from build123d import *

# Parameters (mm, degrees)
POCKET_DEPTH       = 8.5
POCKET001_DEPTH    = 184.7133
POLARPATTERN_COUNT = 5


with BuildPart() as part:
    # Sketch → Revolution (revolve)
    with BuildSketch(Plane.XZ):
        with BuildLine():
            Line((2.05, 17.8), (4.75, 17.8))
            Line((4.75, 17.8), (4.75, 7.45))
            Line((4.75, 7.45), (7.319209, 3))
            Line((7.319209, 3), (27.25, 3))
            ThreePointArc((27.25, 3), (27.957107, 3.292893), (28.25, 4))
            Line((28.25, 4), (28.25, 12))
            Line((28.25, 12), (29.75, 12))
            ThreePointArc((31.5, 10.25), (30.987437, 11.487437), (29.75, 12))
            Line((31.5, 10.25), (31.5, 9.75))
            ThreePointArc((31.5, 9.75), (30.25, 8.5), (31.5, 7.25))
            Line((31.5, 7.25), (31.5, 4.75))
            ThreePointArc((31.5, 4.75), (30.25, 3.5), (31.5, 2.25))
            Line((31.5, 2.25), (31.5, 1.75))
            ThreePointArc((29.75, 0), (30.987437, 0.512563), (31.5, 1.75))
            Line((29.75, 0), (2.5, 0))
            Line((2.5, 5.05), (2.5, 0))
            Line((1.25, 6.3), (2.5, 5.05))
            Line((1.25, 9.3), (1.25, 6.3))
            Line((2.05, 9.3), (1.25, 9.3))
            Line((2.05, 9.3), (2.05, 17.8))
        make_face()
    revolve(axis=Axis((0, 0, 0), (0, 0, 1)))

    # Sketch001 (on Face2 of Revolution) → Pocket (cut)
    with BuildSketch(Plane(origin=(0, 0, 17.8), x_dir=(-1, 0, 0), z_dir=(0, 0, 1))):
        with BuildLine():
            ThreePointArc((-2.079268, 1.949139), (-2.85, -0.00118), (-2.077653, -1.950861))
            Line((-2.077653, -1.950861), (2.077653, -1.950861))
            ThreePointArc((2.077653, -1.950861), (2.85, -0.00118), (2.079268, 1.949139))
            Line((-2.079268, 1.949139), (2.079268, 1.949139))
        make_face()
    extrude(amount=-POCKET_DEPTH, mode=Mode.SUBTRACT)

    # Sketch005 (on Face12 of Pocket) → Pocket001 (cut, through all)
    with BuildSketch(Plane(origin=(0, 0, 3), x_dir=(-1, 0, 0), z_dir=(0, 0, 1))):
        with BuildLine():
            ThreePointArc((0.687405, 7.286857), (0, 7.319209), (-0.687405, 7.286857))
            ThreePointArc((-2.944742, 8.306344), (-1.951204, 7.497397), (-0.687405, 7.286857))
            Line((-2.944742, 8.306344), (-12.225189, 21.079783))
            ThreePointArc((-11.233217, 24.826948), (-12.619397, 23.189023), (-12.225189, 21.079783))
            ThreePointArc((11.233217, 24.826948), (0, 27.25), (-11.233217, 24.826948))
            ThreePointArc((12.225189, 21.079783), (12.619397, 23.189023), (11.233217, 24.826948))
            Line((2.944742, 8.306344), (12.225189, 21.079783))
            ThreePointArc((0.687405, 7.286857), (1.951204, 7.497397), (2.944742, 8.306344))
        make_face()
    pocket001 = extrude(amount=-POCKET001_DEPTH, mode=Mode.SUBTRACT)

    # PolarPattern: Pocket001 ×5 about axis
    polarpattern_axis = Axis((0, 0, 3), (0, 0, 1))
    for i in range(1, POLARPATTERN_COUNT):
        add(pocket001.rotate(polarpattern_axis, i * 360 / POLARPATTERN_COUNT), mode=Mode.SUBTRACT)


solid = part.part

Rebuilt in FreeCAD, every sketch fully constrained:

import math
import FreeCAD as App
import Part
import Sketcher
Q = App.Units.Quantity

doc = App.newDocument("Part")
body = doc.addObject("PartDesign::Body", "Body")

# Sketch on XZ plane
sketch1 = body.newObject("Sketcher::SketchObject", "Sketch")
sketch1.AttachmentSupport = (doc.getObject("XZ_Plane"), [""])
sketch1.MapMode = "FlatFace"
sketch1.addGeometry([
    Part.LineSegment(App.Vector(4.8, 17.8, 0), App.Vector(2, 17.8, 0)),  # 0
    Part.LineSegment(App.Vector(2, 17.8, 0), App.Vector(2, 9.3, 0)),  # 1
    Part.LineSegment(App.Vector(2, 9.3, 0), App.Vector(1.2, 9.3, 0)),  # 2
    Part.LineSegment(App.Vector(1.2, 9.3, 0), App.Vector(1.2, 6.3, 0)),  # 3
    Part.LineSegment(App.Vector(1.2, 6.3, 0), App.Vector(2.5, 5, 0)),  # 4
    Part.LineSegment(App.Vector(2.5, 5, 0), App.Vector(2.5, 0, 0)),  # 5
    Part.LineSegment(App.Vector(2.5, 0, 0), App.Vector(29.8, 0, 0)),  # 6
    Part.ArcOfCircle(Part.Circle(App.Vector(29.8, 1.7, 0), App.Vector(0, 0, 1), 1.7), math.radians(-90), math.radians(0)),  # 7
    Part.LineSegment(App.Vector(31.5, 1.8, 0), App.Vector(31.5, 2.2, 0)),  # 8
    Part.ArcOfCircle(Part.Circle(App.Vector(31.5, 3.5, 0), App.Vector(0, 0, 1), 1.2), math.radians(90), math.radians(270)),  # 9
    Part.LineSegment(App.Vector(31.5, 4.8, 0), App.Vector(31.5, 7.2, 0)),  # 10
    Part.ArcOfCircle(Part.Circle(App.Vector(31.5, 8.5, 0), App.Vector(0, 0, 1), 1.2), math.radians(90), math.radians(270)),  # 11
    Part.LineSegment(App.Vector(31.5, 9.8, 0), App.Vector(31.5, 10.2, 0)),  # 12
    Part.ArcOfCircle(Part.Circle(App.Vector(29.8, 10.3, 0), App.Vector(0, 0, 1), 1.7), math.radians(0), math.radians(90)),  # 13
    Part.LineSegment(App.Vector(29.8, 12, 0), App.Vector(28.2, 12, 0)),  # 14
    Part.LineSegment(App.Vector(28.2, 12, 0), App.Vector(28.2, 4, 0)),  # 15
    Part.ArcOfCircle(Part.Circle(App.Vector(27.3, 4, 0), App.Vector(0, 0, 1), 1), math.radians(-90), math.radians(0)),  # 16
    Part.LineSegment(App.Vector(27.2, 3, 0), App.Vector(7.3, 3, 0)),  # 17
    Part.LineSegment(App.Vector(7.3, 3, 0), App.Vector(4.8, 7.5, 0)),  # 18
    Part.LineSegment(App.Vector(4.8, 7.5, 0), App.Vector(4.8, 17.8, 0)),  # 19
], False)
sketch1.addConstraint([
    Sketcher.Constraint("Coincident", 0, 2, 1, 1),
    Sketcher.Constraint("Coincident", 1, 2, 2, 1),
    Sketcher.Constraint("Coincident", 2, 2, 3, 1),
    Sketcher.Constraint("Coincident", 3, 2, 4, 1),
    Sketcher.Constraint("Coincident", 4, 2, 5, 1),
    Sketcher.Constraint("Coincident", 5, 2, 6, 1),
    Sketcher.Constraint("Tangent", 6, 2, 7, 1),
    Sketcher.Constraint("Tangent", 7, 2, 8, 1),
    Sketcher.Constraint("Coincident", 8, 2, 9, 2),
    Sketcher.Constraint("Coincident", 9, 1, 10, 1),
    Sketcher.Constraint("Coincident", 10, 2, 11, 2),
    Sketcher.Constraint("Coincident", 11, 1, 12, 1),
    Sketcher.Constraint("Tangent", 12, 2, 13, 1),
    Sketcher.Constraint("Tangent", 13, 2, 14, 1),
    Sketcher.Constraint("Coincident", 14, 2, 15, 1),
    Sketcher.Constraint("Tangent", 15, 2, 16, 2),
    Sketcher.Constraint("Tangent", 16, 1, 17, 1),
    Sketcher.Constraint("Coincident", 17, 2, 18, 1),
    Sketcher.Constraint("Coincident", 18, 2, 19, 1),
    Sketcher.Constraint("Coincident", 19, 2, 0, 1),
    Sketcher.Constraint("Horizontal", 0),
    Sketcher.Constraint("Vertical", 1),
    Sketcher.Constraint("Horizontal", 2),
    Sketcher.Constraint("Vertical", 3),
    Sketcher.Constraint("Vertical", 5),
    Sketcher.Constraint("Horizontal", 6),
    Sketcher.Constraint("Vertical", 8),
    Sketcher.Constraint("Vertical", 10),
    Sketcher.Constraint("Vertical", 12),
    Sketcher.Constraint("Horizontal", 14),
    Sketcher.Constraint("Vertical", 15),
    Sketcher.Constraint("Horizontal", 17),
    Sketcher.Constraint("Vertical", 19),
    Sketcher.Constraint("Equal", 9, 11),
    Sketcher.Constraint("Equal", 7, 13),
    Sketcher.Constraint("PointOnObject", 5, 2, -1),
    Sketcher.Constraint("Vertical", 9, 3, 11, 3),
    Sketcher.Constraint("Vertical", 7, 3, 13, 3),
    Sketcher.Constraint("Vertical", 11, 3, 7, 2),
    Sketcher.Constraint("Vertical", 8, 2, 9, 1),
    Sketcher.Constraint("Equal", 8, 12),
    Sketcher.Constraint("Radius", 16, Q("0.999999 mm")),
    Sketcher.Constraint("DistanceY", 3, 2, 3, 1, Q("3 mm")),
    Sketcher.Constraint("DistanceY", 15, 2, 15, 1, Q("8 mm")),
    Sketcher.Constraint("Angle", 4, Q("-45 deg")),
    Sketcher.Constraint("Angle", 18, Q("120.000003 deg")),
    Sketcher.Constraint("Radius", 7, Q("1.75 mm")),
    Sketcher.Constraint("Radius", 9, Q("1.25 mm")),
    Sketcher.Constraint("DistanceX", 0, 2, 0, 1, Q("2.7 mm")),
    Sketcher.Constraint("DistanceX", 2, 2, 2, 1, Q("0.8 mm")),
    Sketcher.Constraint("DistanceX", 14, 2, 14, 1, Q("1.5 mm")),
    Sketcher.Constraint("DistanceY", 1, 2, 1, 1, Q("8.5 mm")),
    Sketcher.Constraint("DistanceY", 8, 1, 8, 2, Q("0.5 mm")),
    Sketcher.Constraint("DistanceY", 10, 1, 10, 2, Q("2.5 mm")),
    Sketcher.Constraint("DistanceX", 2, 2, 16, 3, Q("26.000001 mm")),
    Sketcher.Constraint("DistanceX", 6, 1, 6, 2, Q("27.25 mm")),
    Sketcher.Constraint("DistanceY", 5, 2, 5, 1, Q("5.05 mm")),
    Sketcher.Constraint("DistanceY", 19, 1, 19, 2, Q("10.35 mm")),
    Sketcher.Constraint("DistanceX", -1, 1, 9, 3, Q("31.5 mm")),
])
revolution = body.newObject("PartDesign::Revolution", "Revolution")
revolution.Profile = sketch1
revolution.ReferenceAxis = (sketch1, ["V_Axis"])
revolution.Angle = 360

# Sketch on XY plane
sketch2 = body.newObject("Sketcher::SketchObject", "Sketch001")
sketch2.AttachmentSupport = (doc.getObject("XY_Plane"), [""])
sketch2.MapMode = "FlatFace"
sketch2.AttachmentOffset = App.Placement(App.Vector(0, 0, 17.8), App.Rotation())
sketch2.addGeometry([
    Part.ArcOfCircle(Part.Circle(App.Vector(0, 0, 0), App.Vector(0, 0, 1), 2.8), math.radians(-43), math.radians(43)),
    Part.LineSegment(App.Vector(2.1, 2, 0), App.Vector(-2.1, 2, 0)),
    Part.ArcOfCircle(Part.Circle(App.Vector(0, 0, 0), App.Vector(0, 0, 1), 2.8), math.radians(137), math.radians(223)),
    Part.LineSegment(App.Vector(-2.1, -1.9, 0), App.Vector(2.1, -1.9, 0)),
], False)
sketch2.addConstraint([
    Sketcher.Constraint("Coincident", 0, 2, 1, 1),
    Sketcher.Constraint("Coincident", 1, 2, 2, 1),
    Sketcher.Constraint("Coincident", 2, 2, 3, 1),
    Sketcher.Constraint("Coincident", 3, 2, 0, 1),
    Sketcher.Constraint("Horizontal", 1),
    Sketcher.Constraint("Horizontal", 3),
    Sketcher.Constraint("Coincident", 0, 3, -1, 1),
    Sketcher.Constraint("Coincident", 2, 3, -1, 1),
    Sketcher.Constraint("Equal", 0, 2),
    Sketcher.Constraint("Radius", 0, Q("2.849999 mm")),
    Sketcher.Constraint("DistanceY", 2, 2, 1, 2, Q("3.9 mm")),
    Sketcher.Constraint("DistanceX", 1, 2, 1, 1, Q("4.155306 mm")),
])
pocket1 = body.newObject("PartDesign::Pocket", "Pocket")
pocket1.Profile = sketch2
pocket1.Length = 8.5

# Sketch on XY plane
sketch3 = body.newObject("Sketcher::SketchObject", "Sketch002")
sketch3.AttachmentSupport = (doc.getObject("XY_Plane"), [""])
sketch3.MapMode = "FlatFace"
sketch3.AttachmentOffset = App.Placement(App.Vector(0, 0, 3), App.Rotation())
sketch3.addGeometry([
    Part.ArcOfCircle(Part.Circle(App.Vector(0, 0, 0), App.Vector(0, 0, 1), 7.3), math.radians(-95.39), math.radians(-84.61)),  # 0
    Part.ArcOfCircle(Part.Circle(App.Vector(-0.9, -9.8, 0), App.Vector(0, 0, 1), 2.5), math.radians(85), math.radians(144)),  # 1
    Part.LineSegment(App.Vector(-2.9, -8.3, 0), App.Vector(-12.2, -21.1, 0)),  # 2
    Part.ArcOfCircle(Part.Circle(App.Vector(-10.2, -22.5, 0), App.Vector(0, 0, 1), 2.5), math.radians(144), math.radians(246)),  # 3
    Part.ArcOfCircle(Part.Circle(App.Vector(0, 0, 0), App.Vector(0, 0, 1), 27.3), math.radians(-114), math.radians(-66)),  # 4
    Part.ArcOfCircle(Part.Circle(App.Vector(10.2, -22.5, 0), App.Vector(0, 0, 1), 2.5), math.radians(-66), math.radians(36)),  # 5
    Part.LineSegment(App.Vector(12.2, -21.1, 0), App.Vector(2.9, -8.3, 0)),  # 6
    Part.ArcOfCircle(Part.Circle(App.Vector(0.9, -9.8, 0), App.Vector(0, 0, 1), 2.5), math.radians(36), math.radians(95)),  # 7
], False)
sketch3.addConstraint([
    Sketcher.Constraint("Tangent", 0, 1, 1, 1),
    Sketcher.Constraint("Tangent", 1, 2, 2, 1),
    Sketcher.Constraint("Tangent", 2, 2, 3, 1),
    Sketcher.Constraint("Tangent", 3, 2, 4, 1),
    Sketcher.Constraint("Tangent", 4, 2, 5, 1),
    Sketcher.Constraint("Tangent", 5, 2, 6, 1),
    Sketcher.Constraint("Tangent", 6, 2, 7, 1),
    Sketcher.Constraint("Tangent", 7, 2, 0, 2),
    Sketcher.Constraint("Coincident", 4, 3, -1, 1),
    Sketcher.Constraint("Equal", 3, 5),
    Sketcher.Constraint("Equal", 1, 7),
    Sketcher.Constraint("Symmetric", 1, 3, 7, 3, -2),
    Sketcher.Constraint("Horizontal", 3, 3, 5, 3),
    Sketcher.Constraint("Radius", 3, Q("2.500001 mm")),
    Sketcher.Constraint("Angle", 2, Q("-126.000001 deg")),
    Sketcher.Constraint("Radius", 0, Q("7.319057 mm")),
    Sketcher.Constraint("Radius", 1, Q("2.499997 mm")),
    Sketcher.Constraint("Radius", 4, Q("27.250002 mm")),
    Sketcher.Constraint("DistanceX", 1, 3, -1, 1, Q("0.922201 mm")),
    Sketcher.Constraint("Distance", 2, Q("15.788839 mm")),
])
pocket2 = body.newObject("PartDesign::Pocket", "Pocket001")
pocket2.Profile = sketch3
pocket2.Type = "ThroughAll"
doc.recompute()

polarpattern = body.newObject("PartDesign::PolarPattern", "PolarPattern")
polarpattern.Originals = [pocket2]
polarpattern.Axis = (doc.getObject("Z_Axis"), [""])
polarpattern.Angle = 360
polarpattern.Occurrences = 5
body.Tip = polarpattern

doc.recompute()
